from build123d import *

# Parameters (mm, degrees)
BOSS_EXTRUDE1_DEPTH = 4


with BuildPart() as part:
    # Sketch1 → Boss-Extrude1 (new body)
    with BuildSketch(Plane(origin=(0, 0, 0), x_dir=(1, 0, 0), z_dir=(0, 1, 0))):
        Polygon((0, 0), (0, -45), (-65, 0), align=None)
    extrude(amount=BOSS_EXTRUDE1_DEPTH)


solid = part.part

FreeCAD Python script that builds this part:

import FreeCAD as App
import Part
import Sketcher

V = App.Vector
Q = App.Units.Quantity


def add_polygon(sketch, points):
    """Adds a closed chain of lines whose ends are joined by coincident constraints."""
    first, n = sketch.GeometryCount, len(points)
    for a, b in zip(points, points[1:] + points[:1]):
        sketch.addGeometry(Part.LineSegment(App.Vector(*a, 0), App.Vector(*b, 0)), False)
    for i in range(n):
        sketch.addConstraint(Sketcher.Constraint("Coincident", first + i, 2, first + (i + 1) % n, 1))

doc = App.newDocument("Part")
body = doc.addObject("PartDesign::Body", "Body")

# Sketch on XZ plane
sketch1 = body.newObject("Sketcher::SketchObject", "Sketch")
sketch1.AttachmentSupport = (doc.getObject("XZ_Plane"), [""])
sketch1.MapMode = "FlatFace"
add_polygon(sketch1, [(0, 45), (0, 0), (-65, 0)])  # lines 0-2
sketch1.addConstraint(Sketcher.Constraint("Vertical", 0))
sketch1.addConstraint(Sketcher.Constraint("Horizontal", 1))
sketch1.addConstraint(Sketcher.Constraint("Coincident", 0, 2, -1, 1))
sketch1.addConstraint(Sketcher.Constraint("DistanceX", 1, 2, 1, 1, Q("65 mm")))
sketch1.addConstraint(Sketcher.Constraint("DistanceY", 0, 2, 0, 1, Q("45 mm")))
pad1 = body.newObject("PartDesign::Pad", "Pad")
pad1.Profile = sketch1
pad1.Length = 4
pad1.Reversed = True

doc.recompute()
